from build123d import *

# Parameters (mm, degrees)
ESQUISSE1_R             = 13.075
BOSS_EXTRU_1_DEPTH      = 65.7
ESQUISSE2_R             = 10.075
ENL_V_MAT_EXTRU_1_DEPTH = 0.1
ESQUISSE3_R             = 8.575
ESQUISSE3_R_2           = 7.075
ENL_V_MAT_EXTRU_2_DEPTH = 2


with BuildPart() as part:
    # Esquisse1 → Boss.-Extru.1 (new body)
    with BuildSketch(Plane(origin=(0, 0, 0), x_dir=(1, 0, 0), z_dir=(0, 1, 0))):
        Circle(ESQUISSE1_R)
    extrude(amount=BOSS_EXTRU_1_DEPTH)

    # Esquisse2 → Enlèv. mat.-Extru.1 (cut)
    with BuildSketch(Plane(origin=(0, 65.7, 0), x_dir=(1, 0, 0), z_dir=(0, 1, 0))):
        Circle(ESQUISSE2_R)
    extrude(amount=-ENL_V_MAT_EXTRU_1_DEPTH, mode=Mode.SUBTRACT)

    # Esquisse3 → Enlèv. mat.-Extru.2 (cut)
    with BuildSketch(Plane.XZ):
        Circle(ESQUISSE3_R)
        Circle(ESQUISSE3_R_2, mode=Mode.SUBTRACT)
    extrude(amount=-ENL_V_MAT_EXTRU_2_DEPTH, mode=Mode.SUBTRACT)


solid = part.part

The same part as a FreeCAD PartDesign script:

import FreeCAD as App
import Part
import Sketcher
from FreeCAD import Vector

doc = App.newDocument("Part")
body = doc.addObject("PartDesign::Body", "Body")

# Sketch on XZ plane
sketch1 = doc.addObject("Sketcher::SketchObject", "Sketch")
body.addObject(sketch1)
sketch1.AttachmentSupport = (doc.XZ_Plane, [""])
sketch1.MapMode = "FlatFace"
sketch1.addGeometry(Part.Circle(Vector(0, 0, 0), Vector(0, 0, 1), 13.075), False)
sketch1.addConstraint([
    Sketcher.Constraint("Coincident", 0, 3, -1, 1),
    Sketcher.Constraint("Diameter", 0, 26.15),
])
pad1 = doc.addObject("PartDesign::Pad", "Pad")
body.addObject(pad1)
pad1.Profile = sketch1
pad1.Length = 65.7
pad1.Reversed = True

# Sketch on XZ plane
sketch2 = doc.addObject("Sketcher::SketchObject", "Sketch001")
body.addObject(sketch2)
sketch2.AttachmentSupport = (doc.XZ_Plane, [""])
sketch2.MapMode = "FlatFace"
sketch2.AttachmentOffset = App.Placement(Vector(0, 0, -65.7), App.Rotation())
sketch2.addGeometry(Part.Circle(Vector(0, 0, 0), Vector(0, 0, 1), 10.075), False)
sketch2.addConstraint([
    Sketcher.Constraint("Coincident", 0, 3, -1, 1),
    Sketcher.Constraint("Diameter", 0, 20.15),
])
pocket1 = doc.addObject("PartDesign::Pocket", "Pocket")
body.addObject(pocket1)
pocket1.Profile = sketch2
pocket1.Length = 0.1
pocket1.Reversed = True

# Sketch on XZ plane
sketch3 = doc.addObject("Sketcher::SketchObject", "Sketch002")
body.addObject(sketch3)
sketch3.AttachmentSupport = (doc.XZ_Plane, [""])
sketch3.MapMode = "FlatFace"
sketch3.addGeometry([
    Part.Circle(Vector(0, 0, 0), Vector(0, 0, 1), 8.575),
    Part.Circle(Vector(0, 0, 0), Vector(0, 0, 1), 7.075),
], False)
sketch3.addConstraint([
    Sketcher.Constraint("Coincident", 0, 3, -1, 1),
    Sketcher.Constraint("Coincident", 1, 3, -1, 1),
    Sketcher.Constraint("Diameter", 0, 17.15),
    Sketcher.Constraint("Diameter", 1, 14.15),
])
pocket2 = doc.addObject("PartDesign::Pocket", "Pocket001")
body.addObject(pocket2)
pocket2.Profile = sketch3
pocket2.Length = 2

doc.recompute()
